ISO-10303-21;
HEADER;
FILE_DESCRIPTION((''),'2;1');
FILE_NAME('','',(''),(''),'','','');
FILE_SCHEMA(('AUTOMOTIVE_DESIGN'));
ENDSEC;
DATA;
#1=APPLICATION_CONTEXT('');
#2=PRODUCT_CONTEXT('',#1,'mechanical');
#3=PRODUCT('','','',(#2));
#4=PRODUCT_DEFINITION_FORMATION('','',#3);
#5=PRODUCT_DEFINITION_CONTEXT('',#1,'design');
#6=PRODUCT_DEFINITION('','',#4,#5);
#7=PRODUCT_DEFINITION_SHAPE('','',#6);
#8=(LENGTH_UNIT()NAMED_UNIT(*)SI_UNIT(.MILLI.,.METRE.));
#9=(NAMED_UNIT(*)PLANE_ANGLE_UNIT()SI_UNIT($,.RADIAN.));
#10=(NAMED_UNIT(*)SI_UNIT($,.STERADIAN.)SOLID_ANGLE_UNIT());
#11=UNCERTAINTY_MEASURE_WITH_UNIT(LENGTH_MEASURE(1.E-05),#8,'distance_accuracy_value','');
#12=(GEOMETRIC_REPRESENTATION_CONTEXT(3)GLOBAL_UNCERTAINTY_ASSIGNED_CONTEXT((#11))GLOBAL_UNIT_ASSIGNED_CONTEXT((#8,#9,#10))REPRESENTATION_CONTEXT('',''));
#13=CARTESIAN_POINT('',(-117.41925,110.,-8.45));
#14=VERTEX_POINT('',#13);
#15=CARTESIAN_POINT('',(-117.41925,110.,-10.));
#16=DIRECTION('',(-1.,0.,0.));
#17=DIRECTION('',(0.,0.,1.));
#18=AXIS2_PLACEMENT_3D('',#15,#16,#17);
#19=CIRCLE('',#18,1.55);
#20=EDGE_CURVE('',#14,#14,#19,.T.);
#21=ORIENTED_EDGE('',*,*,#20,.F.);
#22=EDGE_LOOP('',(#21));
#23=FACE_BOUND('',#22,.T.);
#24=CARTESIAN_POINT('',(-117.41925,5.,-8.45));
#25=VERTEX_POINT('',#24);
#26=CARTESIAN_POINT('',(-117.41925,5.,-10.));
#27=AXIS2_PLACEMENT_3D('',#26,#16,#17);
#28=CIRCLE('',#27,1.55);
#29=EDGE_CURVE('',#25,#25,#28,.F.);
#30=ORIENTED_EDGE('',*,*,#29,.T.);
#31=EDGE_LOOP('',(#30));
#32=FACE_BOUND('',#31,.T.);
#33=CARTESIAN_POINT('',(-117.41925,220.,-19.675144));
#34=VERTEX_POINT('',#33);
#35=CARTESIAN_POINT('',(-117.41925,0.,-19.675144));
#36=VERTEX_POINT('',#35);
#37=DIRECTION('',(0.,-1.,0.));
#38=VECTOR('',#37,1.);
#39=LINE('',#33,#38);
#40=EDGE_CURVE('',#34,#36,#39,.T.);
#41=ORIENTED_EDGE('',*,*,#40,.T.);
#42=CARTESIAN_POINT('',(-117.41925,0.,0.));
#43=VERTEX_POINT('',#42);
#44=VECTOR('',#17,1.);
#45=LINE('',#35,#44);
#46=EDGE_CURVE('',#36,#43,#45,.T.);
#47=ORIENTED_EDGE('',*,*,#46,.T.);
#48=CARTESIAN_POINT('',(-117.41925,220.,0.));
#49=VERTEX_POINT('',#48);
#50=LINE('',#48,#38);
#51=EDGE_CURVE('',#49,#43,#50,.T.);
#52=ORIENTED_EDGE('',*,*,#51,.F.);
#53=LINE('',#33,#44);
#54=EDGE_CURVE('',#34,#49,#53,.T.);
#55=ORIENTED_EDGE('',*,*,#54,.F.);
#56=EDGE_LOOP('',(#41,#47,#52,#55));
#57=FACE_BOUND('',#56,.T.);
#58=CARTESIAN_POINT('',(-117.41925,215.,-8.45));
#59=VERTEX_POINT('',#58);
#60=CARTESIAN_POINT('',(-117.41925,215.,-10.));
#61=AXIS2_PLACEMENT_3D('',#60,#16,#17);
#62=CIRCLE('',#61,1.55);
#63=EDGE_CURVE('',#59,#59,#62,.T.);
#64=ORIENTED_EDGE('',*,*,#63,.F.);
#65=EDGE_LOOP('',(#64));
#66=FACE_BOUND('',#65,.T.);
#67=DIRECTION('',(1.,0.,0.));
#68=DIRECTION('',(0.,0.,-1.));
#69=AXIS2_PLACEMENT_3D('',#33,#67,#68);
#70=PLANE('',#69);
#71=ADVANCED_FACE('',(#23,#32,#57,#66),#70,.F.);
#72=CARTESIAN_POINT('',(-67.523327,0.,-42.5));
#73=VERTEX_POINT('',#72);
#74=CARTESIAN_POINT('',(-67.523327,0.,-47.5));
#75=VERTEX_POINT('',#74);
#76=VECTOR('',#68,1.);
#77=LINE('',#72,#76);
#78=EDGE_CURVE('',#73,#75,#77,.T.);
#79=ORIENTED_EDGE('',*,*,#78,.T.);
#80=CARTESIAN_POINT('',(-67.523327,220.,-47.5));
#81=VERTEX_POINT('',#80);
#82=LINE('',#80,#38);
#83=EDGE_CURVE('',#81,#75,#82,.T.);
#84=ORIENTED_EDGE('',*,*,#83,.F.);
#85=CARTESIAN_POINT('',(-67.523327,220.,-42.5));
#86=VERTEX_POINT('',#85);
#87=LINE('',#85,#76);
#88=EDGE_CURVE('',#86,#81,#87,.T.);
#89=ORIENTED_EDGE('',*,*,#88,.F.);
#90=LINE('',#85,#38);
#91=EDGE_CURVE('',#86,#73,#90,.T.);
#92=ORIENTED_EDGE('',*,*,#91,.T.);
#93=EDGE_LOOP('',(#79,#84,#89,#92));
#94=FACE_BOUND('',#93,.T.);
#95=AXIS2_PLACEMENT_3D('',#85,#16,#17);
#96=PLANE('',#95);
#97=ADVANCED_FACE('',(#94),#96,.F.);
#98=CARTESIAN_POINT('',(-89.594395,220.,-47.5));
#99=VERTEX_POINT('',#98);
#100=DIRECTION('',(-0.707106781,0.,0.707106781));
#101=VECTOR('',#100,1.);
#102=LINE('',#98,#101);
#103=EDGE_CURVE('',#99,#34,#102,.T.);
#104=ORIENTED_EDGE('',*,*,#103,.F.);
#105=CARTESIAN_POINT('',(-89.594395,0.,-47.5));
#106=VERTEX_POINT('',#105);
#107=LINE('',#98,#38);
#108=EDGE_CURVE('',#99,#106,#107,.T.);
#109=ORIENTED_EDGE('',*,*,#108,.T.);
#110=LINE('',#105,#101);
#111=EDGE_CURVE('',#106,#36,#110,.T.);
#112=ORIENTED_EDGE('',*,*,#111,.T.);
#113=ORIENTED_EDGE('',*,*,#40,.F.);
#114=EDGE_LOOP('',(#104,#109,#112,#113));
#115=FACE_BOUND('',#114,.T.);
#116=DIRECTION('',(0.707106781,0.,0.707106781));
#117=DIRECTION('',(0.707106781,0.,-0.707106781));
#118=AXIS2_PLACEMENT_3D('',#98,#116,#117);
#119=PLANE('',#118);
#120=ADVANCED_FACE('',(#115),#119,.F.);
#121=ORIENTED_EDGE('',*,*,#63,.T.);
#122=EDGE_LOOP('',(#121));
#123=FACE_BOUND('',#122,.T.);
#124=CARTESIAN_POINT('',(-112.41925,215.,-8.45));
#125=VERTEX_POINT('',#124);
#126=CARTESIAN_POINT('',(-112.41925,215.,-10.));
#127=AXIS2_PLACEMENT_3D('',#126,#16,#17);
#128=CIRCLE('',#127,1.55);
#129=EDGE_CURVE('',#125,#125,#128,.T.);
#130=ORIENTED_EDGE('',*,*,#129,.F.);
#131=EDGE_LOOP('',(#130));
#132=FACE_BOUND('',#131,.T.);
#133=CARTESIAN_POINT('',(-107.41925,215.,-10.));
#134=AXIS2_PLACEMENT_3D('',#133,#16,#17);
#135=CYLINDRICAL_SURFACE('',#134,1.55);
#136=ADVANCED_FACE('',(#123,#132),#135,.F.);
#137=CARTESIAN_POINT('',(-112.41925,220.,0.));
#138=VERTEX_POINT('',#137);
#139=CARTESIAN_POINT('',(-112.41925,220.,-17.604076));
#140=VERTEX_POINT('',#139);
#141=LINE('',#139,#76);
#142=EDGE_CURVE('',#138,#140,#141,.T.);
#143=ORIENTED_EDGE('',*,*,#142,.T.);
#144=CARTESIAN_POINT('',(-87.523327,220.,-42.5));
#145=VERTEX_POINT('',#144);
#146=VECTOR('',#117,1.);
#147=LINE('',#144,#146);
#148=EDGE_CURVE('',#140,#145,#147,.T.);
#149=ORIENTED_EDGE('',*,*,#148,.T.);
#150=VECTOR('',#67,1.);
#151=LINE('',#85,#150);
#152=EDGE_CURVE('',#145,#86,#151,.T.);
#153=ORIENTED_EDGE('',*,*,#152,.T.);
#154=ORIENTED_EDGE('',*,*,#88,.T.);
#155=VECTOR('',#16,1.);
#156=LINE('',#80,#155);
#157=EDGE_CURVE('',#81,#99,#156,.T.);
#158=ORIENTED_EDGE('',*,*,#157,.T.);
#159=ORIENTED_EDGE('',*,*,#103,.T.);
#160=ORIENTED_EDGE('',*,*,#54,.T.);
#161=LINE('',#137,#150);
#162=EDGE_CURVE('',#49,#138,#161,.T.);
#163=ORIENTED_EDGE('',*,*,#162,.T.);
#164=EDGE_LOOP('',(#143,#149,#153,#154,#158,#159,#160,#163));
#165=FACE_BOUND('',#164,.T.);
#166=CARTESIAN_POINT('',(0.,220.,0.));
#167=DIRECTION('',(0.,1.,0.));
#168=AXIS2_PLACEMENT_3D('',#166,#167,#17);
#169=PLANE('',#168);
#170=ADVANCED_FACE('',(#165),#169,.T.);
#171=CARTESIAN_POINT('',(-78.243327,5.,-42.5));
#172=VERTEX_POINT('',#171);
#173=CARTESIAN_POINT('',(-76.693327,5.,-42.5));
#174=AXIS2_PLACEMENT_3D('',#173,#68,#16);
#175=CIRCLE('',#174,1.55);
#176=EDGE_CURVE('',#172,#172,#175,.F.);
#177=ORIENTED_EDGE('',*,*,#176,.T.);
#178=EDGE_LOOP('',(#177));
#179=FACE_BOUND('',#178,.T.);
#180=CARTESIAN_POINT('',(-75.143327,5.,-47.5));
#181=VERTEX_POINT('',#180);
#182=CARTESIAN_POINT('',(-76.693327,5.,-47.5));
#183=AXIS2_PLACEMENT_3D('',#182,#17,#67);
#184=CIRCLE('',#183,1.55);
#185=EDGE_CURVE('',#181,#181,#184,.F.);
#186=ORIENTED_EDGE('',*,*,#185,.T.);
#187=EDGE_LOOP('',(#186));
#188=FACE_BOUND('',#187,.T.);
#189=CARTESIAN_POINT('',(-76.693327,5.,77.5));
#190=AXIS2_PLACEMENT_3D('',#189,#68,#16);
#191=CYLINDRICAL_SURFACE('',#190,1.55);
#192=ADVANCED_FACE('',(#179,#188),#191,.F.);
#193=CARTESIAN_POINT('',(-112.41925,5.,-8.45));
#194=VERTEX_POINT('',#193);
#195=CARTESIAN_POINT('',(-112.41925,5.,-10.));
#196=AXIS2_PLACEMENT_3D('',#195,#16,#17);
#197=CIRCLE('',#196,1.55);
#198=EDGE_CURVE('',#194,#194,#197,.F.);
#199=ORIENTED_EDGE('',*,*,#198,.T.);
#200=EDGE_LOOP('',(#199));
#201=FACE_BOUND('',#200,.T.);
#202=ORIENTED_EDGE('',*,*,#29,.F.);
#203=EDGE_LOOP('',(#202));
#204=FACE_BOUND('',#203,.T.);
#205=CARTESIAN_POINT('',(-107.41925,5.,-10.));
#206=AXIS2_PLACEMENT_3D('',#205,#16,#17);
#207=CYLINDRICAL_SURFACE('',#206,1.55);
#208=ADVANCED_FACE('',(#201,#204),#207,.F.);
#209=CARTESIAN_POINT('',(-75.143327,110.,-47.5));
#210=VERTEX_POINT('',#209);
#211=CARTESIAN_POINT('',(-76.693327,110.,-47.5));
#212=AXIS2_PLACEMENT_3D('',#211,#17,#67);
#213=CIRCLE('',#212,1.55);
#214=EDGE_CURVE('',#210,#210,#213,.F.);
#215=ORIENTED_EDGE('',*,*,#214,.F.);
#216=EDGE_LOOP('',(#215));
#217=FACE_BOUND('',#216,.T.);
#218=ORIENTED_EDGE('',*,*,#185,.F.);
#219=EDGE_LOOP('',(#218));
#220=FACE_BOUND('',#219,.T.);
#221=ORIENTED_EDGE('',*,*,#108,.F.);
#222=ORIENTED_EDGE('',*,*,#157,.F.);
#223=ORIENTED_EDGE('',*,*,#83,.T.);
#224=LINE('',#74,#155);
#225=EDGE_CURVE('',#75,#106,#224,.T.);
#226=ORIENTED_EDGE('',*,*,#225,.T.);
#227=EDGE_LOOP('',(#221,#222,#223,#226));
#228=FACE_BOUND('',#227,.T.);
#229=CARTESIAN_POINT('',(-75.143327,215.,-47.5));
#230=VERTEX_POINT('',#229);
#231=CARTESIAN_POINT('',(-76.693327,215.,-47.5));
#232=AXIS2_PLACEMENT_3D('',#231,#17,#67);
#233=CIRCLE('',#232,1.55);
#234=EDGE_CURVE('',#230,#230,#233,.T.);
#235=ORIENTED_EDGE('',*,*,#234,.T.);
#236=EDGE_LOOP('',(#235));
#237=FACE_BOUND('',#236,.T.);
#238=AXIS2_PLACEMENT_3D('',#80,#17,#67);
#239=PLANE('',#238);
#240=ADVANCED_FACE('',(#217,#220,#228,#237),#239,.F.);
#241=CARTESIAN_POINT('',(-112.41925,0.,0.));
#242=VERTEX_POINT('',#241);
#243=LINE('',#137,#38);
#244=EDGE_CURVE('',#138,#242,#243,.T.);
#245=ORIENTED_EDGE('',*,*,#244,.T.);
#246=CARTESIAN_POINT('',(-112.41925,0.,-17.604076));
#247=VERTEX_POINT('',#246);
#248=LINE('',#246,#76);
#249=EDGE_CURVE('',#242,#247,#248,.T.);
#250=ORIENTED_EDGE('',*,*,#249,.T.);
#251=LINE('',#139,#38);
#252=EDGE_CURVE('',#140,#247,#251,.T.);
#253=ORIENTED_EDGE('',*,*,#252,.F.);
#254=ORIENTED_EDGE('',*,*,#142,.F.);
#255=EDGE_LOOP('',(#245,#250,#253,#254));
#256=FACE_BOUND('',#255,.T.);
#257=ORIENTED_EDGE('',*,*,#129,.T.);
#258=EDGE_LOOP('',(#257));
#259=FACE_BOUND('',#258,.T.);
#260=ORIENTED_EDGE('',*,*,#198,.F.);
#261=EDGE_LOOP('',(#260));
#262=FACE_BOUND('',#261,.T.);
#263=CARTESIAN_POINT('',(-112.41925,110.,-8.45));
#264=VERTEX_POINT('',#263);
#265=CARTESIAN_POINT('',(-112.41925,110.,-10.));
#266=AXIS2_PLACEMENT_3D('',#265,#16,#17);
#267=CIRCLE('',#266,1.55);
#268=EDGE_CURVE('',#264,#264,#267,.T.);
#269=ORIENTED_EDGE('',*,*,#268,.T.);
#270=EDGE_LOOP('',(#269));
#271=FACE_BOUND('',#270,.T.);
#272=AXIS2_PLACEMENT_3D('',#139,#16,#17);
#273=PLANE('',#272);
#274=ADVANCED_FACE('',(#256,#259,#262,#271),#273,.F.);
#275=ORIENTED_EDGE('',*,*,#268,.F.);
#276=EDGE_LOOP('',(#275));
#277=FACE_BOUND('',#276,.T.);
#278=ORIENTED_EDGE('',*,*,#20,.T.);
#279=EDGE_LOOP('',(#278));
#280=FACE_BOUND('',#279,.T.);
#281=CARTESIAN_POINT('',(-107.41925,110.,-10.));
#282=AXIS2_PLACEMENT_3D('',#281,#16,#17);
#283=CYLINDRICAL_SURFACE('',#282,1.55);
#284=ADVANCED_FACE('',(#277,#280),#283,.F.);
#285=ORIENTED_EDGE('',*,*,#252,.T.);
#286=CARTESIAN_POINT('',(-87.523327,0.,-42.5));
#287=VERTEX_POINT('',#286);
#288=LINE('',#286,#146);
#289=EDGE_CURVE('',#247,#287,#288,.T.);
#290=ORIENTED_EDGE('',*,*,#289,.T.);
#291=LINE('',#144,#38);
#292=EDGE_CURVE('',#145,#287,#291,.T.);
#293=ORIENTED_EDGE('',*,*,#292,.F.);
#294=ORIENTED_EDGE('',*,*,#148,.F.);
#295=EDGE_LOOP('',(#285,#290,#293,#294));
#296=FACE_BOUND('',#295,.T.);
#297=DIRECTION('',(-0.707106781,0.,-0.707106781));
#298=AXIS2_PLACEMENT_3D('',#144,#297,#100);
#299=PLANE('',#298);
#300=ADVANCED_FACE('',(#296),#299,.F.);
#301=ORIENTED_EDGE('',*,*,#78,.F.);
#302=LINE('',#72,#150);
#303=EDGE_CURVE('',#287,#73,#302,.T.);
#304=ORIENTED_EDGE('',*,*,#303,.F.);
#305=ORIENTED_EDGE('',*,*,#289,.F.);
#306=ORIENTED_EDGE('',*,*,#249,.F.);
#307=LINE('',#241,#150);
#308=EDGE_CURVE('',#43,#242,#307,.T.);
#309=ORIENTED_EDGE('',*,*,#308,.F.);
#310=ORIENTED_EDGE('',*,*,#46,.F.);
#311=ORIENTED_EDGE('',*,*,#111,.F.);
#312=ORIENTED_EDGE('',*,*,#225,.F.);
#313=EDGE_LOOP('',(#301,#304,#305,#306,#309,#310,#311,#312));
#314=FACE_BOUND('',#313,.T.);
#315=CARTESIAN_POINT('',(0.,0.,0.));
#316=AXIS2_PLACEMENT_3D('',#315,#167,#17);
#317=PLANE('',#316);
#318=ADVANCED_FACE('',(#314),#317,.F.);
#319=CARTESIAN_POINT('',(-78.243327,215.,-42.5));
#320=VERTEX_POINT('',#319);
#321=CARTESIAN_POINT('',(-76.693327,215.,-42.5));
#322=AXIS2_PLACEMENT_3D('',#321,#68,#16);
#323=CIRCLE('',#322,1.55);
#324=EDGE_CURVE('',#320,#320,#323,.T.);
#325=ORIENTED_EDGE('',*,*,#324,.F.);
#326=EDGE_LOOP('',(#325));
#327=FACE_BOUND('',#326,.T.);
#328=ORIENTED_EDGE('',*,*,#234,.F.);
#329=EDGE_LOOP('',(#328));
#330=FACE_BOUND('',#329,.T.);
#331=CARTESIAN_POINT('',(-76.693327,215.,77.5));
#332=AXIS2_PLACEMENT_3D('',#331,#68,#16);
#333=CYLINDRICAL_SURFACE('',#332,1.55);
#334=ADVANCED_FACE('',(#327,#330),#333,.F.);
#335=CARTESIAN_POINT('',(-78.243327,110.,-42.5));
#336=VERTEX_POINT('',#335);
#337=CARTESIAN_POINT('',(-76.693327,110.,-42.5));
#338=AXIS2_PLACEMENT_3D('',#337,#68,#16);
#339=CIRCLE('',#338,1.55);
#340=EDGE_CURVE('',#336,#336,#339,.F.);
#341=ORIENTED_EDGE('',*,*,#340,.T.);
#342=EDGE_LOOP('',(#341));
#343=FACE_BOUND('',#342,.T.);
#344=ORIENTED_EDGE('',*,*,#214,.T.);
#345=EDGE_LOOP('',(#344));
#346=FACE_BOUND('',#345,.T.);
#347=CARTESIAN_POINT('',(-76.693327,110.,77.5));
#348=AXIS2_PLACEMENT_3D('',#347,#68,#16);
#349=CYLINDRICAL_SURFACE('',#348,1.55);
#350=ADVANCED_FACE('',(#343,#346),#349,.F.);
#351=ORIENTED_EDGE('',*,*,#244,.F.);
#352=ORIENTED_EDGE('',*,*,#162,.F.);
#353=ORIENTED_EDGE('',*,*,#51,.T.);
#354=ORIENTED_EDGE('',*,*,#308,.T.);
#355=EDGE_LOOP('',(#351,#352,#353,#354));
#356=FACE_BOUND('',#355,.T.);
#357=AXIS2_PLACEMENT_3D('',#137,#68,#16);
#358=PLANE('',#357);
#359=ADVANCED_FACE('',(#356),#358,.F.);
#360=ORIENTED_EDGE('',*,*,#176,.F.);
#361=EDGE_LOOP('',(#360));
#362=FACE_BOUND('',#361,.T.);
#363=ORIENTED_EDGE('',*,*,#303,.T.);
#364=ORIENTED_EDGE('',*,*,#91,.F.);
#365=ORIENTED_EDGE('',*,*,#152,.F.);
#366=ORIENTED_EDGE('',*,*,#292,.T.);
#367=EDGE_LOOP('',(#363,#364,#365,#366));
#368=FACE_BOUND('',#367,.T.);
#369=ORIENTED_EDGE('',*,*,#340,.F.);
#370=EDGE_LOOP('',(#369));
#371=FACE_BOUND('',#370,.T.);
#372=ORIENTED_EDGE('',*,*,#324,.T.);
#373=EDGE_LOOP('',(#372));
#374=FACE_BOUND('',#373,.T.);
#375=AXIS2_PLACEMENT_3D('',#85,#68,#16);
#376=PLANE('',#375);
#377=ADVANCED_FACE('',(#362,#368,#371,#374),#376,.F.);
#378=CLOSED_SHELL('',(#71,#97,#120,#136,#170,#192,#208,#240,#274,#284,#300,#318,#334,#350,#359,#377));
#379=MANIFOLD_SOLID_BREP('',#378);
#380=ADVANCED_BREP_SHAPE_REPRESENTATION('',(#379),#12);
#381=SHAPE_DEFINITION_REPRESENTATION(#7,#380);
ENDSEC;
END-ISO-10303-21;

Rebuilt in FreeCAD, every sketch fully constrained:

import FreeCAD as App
import Part
import Sketcher
Q = App.Units.Quantity


def add_polygon(sketch, points):
    """Adds a closed chain of lines whose ends are joined by coincident constraints."""
    first, n = sketch.GeometryCount, len(points)
    for a, b in zip(points, points[1:] + points[:1]):
        sketch.addGeometry(Part.LineSegment(App.Vector(*a, 0), App.Vector(*b, 0)), False)
    for i in range(n):
        sketch.addConstraint(Sketcher.Constraint("Coincident", first + i, 2, first + (i + 1) % n, 1))

doc = App.newDocument("Part")
body = doc.addObject("PartDesign::Body", "Body")

# Sketch on XZ plane
sketch1 = body.newObject("Sketcher::SketchObject", "Sketch")
sketch1.AttachmentSupport = (doc.getObject("XZ_Plane"), [""])
sketch1.MapMode = "FlatFace"
add_polygon(sketch1, [(-112, -18), (-88, -42), (-68, -42), (-68, -48), (-90, -48), (-117, -20), (-117, 0), (-112, 0)])  # lines 0-7
sketch1.addConstraint(Sketcher.Constraint("Horizontal", 1))
sketch1.addConstraint(Sketcher.Constraint("Vertical", 2))
sketch1.addConstraint(Sketcher.Constraint("Horizontal", 3))
sketch1.addConstraint(Sketcher.Constraint("Vertical", 5))
sketch1.addConstraint(Sketcher.Constraint("Horizontal", 6))
sketch1.addConstraint(Sketcher.Constraint("Vertical", 7))
sketch1.addConstraint(Sketcher.Constraint("PointOnObject", 5, 2, -1))
sketch1.addConstraint(Sketcher.Constraint("Parallel", 0, 4))
sketch1.addConstraint(Sketcher.Constraint("Equal", 6, 2))
sketch1.addConstraint(Sketcher.Constraint("DistanceX", 1, 1, 1, 2, 20.0))
sketch1.addConstraint(Sketcher.Constraint("DistanceX", 6, 1, 6, 2, 5.0))
sketch1.addConstraint(Sketcher.Constraint("Angle", 0, Q("-45 deg")))
sketch1.addConstraint(Sketcher.Constraint("DistanceY", 0, 2, -1, 1, 42.5))
sketch1.addConstraint(Sketcher.Constraint("Distance", 4, 39.350288))
sketch1.addConstraint(Sketcher.Constraint("DistanceX", 3, 2, 3, 1, 22.071068))
sketch1.addConstraint(Sketcher.Constraint("DistanceX", 4, 2, -1, 1, 117.41925))
pad1 = body.newObject("PartDesign::Pad", "Pad")
pad1.Profile = sketch1
pad1.Length = 220
pad1.Reversed = True

# Sketch on YZ plane
sketch2 = body.newObject("Sketcher::SketchObject", "Sketch001")
sketch2.AttachmentSupport = (doc.getObject("YZ_Plane"), [""])
sketch2.MapMode = "FlatFace"
sketch2.AttachmentOffset = App.Placement(App.Vector(0, 0, -117.41925), App.Rotation())
sketch2.addGeometry(Part.Circle(App.Vector(5, -10, 0), App.Vector(0, 0, 1), 1.6), False)
sketch2.addGeometry(Part.Circle(App.Vector(215, -10, 0), App.Vector(0, 0, 1), 1.6), False)
sketch2.addGeometry(Part.Circle(App.Vector(110, -10, 0), App.Vector(0, 0, 1), 1.6), False)
sketch2.addConstraint(Sketcher.Constraint("Equal", 0, 1))
sketch2.addConstraint(Sketcher.Constraint("Equal", 1, 2))
sketch2.addConstraint(Sketcher.Constraint("Horizontal", 0, 3, 1, 3))
sketch2.addConstraint(Sketcher.Constraint("Horizontal", 1, 3, 2, 3))
sketch2.addConstraint(Sketcher.Constraint("Diameter", 0, 3.1))
sketch2.addConstraint(Sketcher.Constraint("DistanceX", -1, 1, 0, 3, 5.0))
sketch2.addConstraint(Sketcher.Constraint("DistanceY", 0, 3, -1, 1, 10.0))
sketch2.addConstraint(Sketcher.Constraint("DistanceX", -1, 1, 1, 3, 215.0))
sketch2.addConstraint(Sketcher.Constraint("DistanceX", -1, 1, 2, 3, 110.0))
pocket1 = body.newObject("PartDesign::Pocket", "Pocket")
pocket1.Profile = sketch2
pocket1.Length = 10
pocket1.Reversed = True

# Sketch on XY plane
sketch3 = body.newObject("Sketcher::SketchObject", "Sketch002")
sketch3.AttachmentSupport = (doc.getObject("XY_Plane"), [""])
sketch3.MapMode = "FlatFace"
sketch3.AttachmentOffset = App.Placement(App.Vector(0, 0, -42.5), App.Rotation())
sketch3.addGeometry(Part.Circle(App.Vector(-76.7, 5, 0), App.Vector(0, 0, 1), 1.6), False)
sketch3.addGeometry(Part.Circle(App.Vector(-76.7, 215, 0), App.Vector(0, 0, 1), 1.6), False)
sketch3.addGeometry(Part.Circle(App.Vector(-76.7, 110, 0), App.Vector(0, 0, 1), 1.6), False)
sketch3.addConstraint(Sketcher.Constraint("Equal", 0, 1))
sketch3.addConstraint(Sketcher.Constraint("Equal", 1, 2))
sketch3.addConstraint(Sketcher.Constraint("Vertical", 0, 3, 1, 3))
sketch3.addConstraint(Sketcher.Constraint("Vertical", 1, 3, 2, 3))
sketch3.addConstraint(Sketcher.Constraint("Diameter", 0, 3.1))
sketch3.addConstraint(Sketcher.Constraint("DistanceY", -1, 1, 0, 3, 5.0))
sketch3.addConstraint(Sketcher.Constraint("DistanceY", -1, 1, 1, 3, 215.0))
sketch3.addConstraint(Sketcher.Constraint("DistanceY", -1, 1, 2, 3, 110.0))
sketch3.addConstraint(Sketcher.Constraint("DistanceX", 0, 3, -1, 1, 76.693327))
pocket2 = body.newObject("PartDesign::Pocket", "Pocket001")
pocket2.Profile = sketch3
pocket2.Type = "ThroughAll"
pocket2.Midplane = True

doc.recompute()
